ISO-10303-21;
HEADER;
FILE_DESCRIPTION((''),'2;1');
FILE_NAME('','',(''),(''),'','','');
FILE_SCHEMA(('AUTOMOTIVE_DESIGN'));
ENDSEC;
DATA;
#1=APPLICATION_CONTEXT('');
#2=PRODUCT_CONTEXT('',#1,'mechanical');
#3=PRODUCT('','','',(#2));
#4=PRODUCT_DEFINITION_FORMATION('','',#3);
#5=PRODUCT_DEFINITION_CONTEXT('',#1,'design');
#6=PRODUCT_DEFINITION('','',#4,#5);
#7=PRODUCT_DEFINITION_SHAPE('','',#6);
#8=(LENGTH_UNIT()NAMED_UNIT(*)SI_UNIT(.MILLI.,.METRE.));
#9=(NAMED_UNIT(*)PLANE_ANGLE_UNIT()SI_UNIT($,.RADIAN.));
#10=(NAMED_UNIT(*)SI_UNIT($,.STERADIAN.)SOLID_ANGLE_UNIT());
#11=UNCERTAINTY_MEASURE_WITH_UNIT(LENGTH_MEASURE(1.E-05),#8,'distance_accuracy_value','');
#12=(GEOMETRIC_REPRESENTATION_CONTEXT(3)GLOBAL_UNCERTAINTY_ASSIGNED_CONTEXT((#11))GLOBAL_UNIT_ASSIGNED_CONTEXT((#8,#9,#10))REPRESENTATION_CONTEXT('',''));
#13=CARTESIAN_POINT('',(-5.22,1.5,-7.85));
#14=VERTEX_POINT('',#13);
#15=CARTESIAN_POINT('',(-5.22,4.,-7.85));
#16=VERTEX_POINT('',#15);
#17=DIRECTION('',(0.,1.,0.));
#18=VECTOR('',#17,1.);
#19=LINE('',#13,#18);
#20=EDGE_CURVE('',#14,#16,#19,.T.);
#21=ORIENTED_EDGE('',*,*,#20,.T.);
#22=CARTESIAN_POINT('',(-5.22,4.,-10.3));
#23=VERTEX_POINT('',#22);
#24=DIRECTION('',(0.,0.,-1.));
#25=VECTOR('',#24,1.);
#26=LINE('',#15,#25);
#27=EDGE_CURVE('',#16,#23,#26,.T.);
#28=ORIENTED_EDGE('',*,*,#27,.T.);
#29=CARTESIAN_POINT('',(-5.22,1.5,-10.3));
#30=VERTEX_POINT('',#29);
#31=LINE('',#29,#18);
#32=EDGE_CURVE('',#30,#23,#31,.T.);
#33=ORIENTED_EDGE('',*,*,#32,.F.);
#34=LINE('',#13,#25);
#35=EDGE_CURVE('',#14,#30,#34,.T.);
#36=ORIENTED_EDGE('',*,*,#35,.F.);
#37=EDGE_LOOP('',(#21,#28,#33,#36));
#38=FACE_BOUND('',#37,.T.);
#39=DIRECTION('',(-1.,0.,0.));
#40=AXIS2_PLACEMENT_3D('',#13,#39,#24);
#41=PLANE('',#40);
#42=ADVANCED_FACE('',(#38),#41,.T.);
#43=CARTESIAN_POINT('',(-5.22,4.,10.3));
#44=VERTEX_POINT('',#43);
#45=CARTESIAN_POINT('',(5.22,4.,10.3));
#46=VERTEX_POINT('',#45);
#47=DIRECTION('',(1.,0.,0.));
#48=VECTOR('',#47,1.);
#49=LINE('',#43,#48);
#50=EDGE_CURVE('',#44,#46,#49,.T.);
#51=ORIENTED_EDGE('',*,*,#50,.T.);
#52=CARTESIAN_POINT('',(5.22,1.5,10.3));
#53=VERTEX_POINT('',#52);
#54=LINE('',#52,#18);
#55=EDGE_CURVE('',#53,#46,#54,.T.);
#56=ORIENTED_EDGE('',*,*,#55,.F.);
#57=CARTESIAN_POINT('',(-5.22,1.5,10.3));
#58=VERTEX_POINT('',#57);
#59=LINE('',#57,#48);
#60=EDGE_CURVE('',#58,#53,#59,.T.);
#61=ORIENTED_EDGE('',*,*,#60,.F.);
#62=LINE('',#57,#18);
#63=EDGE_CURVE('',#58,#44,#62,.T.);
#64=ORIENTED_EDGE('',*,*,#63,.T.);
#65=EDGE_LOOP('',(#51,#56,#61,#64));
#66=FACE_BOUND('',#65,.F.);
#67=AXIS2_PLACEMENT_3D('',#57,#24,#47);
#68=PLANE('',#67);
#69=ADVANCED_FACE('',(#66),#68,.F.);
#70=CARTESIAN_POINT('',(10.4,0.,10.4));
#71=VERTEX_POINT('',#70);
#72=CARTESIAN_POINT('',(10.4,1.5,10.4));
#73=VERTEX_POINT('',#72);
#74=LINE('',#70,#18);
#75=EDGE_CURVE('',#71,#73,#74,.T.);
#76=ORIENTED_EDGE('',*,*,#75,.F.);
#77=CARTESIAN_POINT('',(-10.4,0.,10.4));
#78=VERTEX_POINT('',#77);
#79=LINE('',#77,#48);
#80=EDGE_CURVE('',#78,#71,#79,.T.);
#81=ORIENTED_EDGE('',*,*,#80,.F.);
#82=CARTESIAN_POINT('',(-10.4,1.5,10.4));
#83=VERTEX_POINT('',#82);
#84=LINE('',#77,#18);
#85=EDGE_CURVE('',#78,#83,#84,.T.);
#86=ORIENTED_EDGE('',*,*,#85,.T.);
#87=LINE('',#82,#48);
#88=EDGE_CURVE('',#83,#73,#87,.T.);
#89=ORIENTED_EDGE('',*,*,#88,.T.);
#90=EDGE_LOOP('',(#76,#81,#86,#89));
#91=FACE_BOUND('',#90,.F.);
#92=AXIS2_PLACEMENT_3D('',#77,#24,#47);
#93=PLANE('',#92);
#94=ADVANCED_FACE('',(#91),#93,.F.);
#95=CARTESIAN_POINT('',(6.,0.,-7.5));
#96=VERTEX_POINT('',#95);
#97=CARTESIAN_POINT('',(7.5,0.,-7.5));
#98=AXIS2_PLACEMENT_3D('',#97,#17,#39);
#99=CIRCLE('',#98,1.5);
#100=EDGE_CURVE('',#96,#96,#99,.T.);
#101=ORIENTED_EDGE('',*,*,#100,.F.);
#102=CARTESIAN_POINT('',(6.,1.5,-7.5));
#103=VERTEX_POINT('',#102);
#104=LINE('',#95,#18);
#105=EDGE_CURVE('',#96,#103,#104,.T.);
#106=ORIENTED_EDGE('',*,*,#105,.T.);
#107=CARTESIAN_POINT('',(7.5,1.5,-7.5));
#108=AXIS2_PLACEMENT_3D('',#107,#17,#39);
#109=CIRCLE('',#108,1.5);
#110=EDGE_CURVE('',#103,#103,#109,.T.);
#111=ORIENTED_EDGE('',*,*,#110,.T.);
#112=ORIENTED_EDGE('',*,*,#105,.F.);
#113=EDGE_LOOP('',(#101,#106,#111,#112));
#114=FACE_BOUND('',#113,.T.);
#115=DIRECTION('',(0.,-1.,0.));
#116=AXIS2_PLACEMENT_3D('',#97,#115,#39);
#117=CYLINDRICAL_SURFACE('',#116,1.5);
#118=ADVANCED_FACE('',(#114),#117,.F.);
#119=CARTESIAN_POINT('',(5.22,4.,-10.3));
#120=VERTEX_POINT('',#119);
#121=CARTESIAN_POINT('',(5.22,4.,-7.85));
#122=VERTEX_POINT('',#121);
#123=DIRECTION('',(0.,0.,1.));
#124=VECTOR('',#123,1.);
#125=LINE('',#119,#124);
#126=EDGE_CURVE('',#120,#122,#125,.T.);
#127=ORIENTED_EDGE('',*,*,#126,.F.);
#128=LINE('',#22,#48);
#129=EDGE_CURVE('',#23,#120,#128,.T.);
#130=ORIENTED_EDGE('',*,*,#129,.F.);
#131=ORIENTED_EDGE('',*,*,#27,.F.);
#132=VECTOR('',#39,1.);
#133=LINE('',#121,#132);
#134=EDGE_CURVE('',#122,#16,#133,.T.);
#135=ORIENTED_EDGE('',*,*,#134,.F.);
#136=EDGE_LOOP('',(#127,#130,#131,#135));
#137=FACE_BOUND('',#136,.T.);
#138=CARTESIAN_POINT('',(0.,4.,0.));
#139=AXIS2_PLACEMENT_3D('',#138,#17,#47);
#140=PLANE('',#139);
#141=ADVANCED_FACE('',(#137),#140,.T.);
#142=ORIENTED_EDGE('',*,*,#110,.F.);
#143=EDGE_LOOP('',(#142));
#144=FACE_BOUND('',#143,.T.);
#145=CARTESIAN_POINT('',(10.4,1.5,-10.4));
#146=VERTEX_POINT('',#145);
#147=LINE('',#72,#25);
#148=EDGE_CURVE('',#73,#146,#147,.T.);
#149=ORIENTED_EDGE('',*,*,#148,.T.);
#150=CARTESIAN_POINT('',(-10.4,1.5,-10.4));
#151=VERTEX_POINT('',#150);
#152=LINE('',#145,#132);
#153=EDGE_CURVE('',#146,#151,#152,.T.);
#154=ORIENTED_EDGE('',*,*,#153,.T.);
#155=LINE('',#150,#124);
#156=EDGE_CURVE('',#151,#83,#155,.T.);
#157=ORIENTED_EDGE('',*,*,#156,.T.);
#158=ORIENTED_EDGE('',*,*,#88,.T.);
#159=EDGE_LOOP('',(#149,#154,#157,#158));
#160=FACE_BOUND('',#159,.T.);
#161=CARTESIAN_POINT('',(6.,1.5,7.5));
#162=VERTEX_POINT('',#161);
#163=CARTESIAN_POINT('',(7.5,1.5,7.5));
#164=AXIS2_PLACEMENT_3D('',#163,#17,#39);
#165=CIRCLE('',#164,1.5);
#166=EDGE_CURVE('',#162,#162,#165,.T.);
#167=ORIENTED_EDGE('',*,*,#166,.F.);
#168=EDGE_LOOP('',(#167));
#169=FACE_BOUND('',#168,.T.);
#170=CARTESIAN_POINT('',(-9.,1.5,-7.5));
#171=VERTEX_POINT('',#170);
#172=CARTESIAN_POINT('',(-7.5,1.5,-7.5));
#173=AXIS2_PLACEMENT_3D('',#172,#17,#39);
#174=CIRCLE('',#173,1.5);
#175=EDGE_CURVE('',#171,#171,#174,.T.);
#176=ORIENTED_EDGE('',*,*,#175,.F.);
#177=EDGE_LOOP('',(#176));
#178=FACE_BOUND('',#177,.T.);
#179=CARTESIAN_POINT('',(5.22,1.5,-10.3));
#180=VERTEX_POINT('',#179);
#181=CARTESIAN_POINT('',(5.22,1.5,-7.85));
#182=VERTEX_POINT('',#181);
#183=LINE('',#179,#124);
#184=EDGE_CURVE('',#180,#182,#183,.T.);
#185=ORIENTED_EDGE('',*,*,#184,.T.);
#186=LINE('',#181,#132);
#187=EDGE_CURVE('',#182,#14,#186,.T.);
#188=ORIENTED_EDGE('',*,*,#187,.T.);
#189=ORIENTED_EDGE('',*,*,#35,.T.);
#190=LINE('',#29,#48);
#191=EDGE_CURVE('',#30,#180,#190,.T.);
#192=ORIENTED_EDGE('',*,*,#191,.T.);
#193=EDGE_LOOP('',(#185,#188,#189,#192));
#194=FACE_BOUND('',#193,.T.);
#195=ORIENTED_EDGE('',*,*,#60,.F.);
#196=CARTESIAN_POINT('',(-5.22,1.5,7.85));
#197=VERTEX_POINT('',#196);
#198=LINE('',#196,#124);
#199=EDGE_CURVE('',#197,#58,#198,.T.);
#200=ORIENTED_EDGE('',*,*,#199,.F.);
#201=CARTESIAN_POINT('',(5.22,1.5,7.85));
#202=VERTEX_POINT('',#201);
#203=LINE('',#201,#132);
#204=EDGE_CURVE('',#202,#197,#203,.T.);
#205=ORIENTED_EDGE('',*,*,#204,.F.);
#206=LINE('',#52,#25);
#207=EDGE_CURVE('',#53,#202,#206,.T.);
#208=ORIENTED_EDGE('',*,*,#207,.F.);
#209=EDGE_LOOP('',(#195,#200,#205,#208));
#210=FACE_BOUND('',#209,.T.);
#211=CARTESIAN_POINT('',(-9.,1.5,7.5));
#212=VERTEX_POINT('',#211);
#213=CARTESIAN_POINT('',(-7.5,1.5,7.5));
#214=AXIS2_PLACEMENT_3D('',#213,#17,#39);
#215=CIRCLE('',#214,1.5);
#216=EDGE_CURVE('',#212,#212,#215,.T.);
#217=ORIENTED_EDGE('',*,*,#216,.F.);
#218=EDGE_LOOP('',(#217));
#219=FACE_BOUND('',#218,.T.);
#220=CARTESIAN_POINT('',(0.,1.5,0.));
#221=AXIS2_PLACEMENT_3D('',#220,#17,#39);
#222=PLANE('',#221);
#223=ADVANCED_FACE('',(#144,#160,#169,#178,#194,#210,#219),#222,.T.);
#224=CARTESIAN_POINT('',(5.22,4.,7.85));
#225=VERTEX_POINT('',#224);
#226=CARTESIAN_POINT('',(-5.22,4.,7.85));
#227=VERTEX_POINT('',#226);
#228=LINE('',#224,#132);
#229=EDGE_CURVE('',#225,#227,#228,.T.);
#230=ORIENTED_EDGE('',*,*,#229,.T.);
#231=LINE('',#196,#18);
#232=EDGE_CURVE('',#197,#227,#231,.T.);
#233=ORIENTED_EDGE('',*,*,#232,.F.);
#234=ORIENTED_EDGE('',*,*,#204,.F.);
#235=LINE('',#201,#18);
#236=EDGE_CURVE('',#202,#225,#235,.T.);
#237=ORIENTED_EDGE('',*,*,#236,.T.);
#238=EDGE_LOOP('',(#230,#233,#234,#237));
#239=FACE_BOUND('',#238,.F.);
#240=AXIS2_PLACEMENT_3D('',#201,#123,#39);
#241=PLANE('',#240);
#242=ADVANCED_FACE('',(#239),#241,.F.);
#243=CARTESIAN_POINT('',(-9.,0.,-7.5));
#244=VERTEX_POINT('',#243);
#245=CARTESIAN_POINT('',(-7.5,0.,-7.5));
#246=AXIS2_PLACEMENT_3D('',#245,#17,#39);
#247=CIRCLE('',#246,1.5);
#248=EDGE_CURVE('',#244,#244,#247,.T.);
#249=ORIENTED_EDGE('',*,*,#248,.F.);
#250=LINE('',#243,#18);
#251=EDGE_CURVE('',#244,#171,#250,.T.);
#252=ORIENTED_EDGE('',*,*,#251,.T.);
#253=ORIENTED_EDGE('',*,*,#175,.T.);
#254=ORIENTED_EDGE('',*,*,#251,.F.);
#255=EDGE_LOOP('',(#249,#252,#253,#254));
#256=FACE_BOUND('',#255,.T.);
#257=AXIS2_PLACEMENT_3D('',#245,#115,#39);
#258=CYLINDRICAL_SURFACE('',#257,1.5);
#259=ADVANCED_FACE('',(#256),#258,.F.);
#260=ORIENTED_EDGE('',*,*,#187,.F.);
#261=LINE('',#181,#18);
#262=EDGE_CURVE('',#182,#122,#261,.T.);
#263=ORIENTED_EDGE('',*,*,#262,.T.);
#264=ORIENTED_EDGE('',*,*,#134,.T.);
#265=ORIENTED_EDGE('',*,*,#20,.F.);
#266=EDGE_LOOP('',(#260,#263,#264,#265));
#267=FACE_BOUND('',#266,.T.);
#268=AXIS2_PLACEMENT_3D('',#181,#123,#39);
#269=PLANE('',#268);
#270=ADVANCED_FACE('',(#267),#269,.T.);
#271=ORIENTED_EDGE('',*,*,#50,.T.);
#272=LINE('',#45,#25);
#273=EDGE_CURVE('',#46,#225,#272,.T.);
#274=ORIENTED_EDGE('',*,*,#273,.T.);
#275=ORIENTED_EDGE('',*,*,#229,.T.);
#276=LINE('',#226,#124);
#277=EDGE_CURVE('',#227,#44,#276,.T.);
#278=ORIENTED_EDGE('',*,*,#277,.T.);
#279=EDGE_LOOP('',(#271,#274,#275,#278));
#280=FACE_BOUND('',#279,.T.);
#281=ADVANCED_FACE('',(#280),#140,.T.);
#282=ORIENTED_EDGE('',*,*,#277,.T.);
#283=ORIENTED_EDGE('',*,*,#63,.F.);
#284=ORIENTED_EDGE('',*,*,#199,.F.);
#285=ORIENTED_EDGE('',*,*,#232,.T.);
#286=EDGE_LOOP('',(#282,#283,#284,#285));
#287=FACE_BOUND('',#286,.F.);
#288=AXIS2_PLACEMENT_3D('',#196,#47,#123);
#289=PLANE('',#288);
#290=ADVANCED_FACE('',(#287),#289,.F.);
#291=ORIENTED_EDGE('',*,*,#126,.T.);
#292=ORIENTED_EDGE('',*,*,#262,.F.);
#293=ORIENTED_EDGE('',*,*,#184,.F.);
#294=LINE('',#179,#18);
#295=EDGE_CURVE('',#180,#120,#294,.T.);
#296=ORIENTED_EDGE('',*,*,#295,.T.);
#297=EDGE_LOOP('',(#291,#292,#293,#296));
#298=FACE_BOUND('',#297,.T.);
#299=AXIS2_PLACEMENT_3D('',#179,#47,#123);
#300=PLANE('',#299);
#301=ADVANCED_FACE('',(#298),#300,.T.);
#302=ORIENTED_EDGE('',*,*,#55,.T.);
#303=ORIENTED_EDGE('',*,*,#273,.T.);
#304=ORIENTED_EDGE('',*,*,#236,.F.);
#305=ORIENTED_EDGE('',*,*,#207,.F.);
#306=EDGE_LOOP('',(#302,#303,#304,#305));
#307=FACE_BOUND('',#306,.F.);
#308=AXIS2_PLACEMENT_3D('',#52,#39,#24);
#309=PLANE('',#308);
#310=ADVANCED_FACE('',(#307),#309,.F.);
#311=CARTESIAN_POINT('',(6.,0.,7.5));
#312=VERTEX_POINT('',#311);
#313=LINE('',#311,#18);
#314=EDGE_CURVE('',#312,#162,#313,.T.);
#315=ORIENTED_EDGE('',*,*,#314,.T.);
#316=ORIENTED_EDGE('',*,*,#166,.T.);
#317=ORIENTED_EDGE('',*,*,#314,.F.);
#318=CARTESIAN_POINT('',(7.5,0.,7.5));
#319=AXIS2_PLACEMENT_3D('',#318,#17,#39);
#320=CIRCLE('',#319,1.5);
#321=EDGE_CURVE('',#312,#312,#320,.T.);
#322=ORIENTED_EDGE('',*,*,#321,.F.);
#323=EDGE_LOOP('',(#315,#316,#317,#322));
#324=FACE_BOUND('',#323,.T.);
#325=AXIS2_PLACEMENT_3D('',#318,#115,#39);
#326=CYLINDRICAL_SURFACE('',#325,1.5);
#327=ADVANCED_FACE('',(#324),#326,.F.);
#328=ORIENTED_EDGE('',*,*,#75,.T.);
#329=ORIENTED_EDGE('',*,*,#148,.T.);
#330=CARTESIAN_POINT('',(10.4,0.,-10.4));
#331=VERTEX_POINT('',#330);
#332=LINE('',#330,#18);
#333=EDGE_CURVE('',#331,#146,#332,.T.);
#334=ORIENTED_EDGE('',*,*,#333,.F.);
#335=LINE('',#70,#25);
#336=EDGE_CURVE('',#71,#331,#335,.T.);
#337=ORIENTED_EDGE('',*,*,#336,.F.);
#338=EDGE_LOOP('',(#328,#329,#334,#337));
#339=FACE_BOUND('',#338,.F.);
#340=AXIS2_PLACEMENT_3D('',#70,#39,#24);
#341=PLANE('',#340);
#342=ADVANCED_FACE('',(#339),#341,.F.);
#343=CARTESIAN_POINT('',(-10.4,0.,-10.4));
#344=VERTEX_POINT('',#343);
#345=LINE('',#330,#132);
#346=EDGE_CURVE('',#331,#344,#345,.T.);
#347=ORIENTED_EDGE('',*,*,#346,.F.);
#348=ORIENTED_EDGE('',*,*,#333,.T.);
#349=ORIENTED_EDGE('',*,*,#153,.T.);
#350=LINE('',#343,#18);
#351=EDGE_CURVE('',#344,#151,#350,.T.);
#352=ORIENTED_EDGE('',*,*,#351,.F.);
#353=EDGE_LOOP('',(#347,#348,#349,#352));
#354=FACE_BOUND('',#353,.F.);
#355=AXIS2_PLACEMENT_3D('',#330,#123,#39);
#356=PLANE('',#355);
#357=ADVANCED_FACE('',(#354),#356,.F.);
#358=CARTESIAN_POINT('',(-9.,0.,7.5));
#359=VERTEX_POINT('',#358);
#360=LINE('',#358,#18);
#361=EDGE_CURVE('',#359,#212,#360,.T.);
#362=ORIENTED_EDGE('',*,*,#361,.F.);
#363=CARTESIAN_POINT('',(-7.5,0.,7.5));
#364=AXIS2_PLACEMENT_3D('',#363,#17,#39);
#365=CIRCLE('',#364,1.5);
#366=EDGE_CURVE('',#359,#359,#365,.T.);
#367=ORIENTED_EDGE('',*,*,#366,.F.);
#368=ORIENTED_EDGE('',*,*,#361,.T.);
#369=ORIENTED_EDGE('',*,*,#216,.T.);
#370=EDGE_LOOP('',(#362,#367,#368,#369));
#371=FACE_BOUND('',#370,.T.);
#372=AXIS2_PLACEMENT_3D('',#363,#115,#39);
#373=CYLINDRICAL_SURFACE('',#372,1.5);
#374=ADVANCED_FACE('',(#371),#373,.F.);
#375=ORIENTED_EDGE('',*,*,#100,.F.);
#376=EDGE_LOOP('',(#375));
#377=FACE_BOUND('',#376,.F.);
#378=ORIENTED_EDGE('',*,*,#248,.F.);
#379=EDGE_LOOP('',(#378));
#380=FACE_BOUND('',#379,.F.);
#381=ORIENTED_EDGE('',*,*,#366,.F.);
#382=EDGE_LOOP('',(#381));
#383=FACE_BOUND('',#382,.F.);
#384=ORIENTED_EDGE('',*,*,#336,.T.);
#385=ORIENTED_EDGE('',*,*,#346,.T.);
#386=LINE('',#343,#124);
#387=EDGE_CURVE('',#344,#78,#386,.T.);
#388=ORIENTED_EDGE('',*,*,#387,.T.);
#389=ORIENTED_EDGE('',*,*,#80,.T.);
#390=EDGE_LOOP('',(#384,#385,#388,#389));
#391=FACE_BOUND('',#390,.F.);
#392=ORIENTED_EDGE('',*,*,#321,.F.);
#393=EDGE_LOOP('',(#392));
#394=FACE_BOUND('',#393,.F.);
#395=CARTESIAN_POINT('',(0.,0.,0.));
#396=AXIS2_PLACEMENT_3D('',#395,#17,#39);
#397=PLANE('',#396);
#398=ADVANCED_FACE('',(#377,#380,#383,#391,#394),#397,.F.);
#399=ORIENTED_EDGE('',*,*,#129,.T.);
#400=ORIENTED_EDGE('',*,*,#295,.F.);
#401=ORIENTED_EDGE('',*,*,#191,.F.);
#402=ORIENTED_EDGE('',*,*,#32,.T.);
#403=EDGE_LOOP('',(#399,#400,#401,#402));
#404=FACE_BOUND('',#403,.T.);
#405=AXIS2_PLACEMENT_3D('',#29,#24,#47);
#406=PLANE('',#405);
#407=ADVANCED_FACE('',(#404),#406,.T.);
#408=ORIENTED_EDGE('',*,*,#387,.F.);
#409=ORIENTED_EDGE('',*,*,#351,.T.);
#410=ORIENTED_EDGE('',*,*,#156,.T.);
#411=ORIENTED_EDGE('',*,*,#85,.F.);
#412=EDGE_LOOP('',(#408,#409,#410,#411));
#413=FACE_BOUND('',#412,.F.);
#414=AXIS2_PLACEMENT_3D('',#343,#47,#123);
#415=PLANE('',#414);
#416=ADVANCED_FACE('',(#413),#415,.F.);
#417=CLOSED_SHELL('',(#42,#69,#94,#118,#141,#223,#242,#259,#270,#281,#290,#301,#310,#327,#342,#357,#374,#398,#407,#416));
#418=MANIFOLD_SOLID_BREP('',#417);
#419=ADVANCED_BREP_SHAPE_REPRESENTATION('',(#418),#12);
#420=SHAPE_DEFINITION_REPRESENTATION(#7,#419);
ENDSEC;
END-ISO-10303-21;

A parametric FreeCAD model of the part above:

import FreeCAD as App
import Part
import Sketcher
from FreeCAD import Vector


def add_polygon(sketch, points):
    """Adds a closed chain of lines whose ends are joined by coincident constraints."""
    first, n = sketch.GeometryCount, len(points)
    for a, b in zip(points, points[1:] + points[:1]):
        sketch.addGeometry(Part.LineSegment(App.Vector(*a, 0), App.Vector(*b, 0)), False)
    for i in range(n):
        sketch.addConstraint(Sketcher.Constraint("Coincident", first + i, 2, first + (i + 1) % n, 1))

doc = App.newDocument("Part")
body = doc.addObject("PartDesign::Body", "Body")

# Sketch on XZ plane
sketch1 = body.newObject("Sketcher::SketchObject", "Sketch")
sketch1.AttachmentSupport = (doc.getObject("XZ_Plane"), [""])
sketch1.MapMode = "FlatFace"
add_polygon(sketch1, [(-10.4, -10.4), (-10.4, 10.4), (10.4, 10.4), (10.4, -10.4)])  # lines 0-3
sketch1.addGeometry(Part.Circle(Vector(7.5, -7.5, 0), Vector(0, 0, 1), 1.5), False)  # 4
sketch1.addGeometry(Part.Circle(Vector(-7.5, -7.5, 0), Vector(0, 0, 1), 1.5), False)  # 5
sketch1.addGeometry(Part.Circle(Vector(7.5, 7.5, 0), Vector(0, 0, 1), 1.5), False)  # 6
sketch1.addGeometry(Part.Circle(Vector(-7.5, 7.5, 0), Vector(0, 0, 1), 1.5), False)  # 7
sketch1.addConstraint([
    Sketcher.Constraint("Vertical", 0),
    Sketcher.Constraint("Horizontal", 1),
    Sketcher.Constraint("Vertical", 2),
    Sketcher.Constraint("Horizontal", 3),
    Sketcher.Constraint("Equal", 4, 5),
    Sketcher.Constraint("Equal", 5, 6),
    Sketcher.Constraint("Equal", 6, 7),
    Sketcher.Constraint("Symmetric", 5, 3, 6, 3, -1, 1),
    Sketcher.Constraint("Symmetric", 4, 3, 7, 3, -1, 1),
    Sketcher.Constraint("Symmetric", 0, 2, 2, 2, -1, 1),
    Sketcher.Constraint("Symmetric", 4, 3, 5, 3, -2),
    Sketcher.Constraint("Equal", 3, 0),
    Sketcher.Constraint("Diameter", 4, 3.0),
    Sketcher.Constraint("DistanceX", 1, 1, 1, 2, 20.8),
    Sketcher.Constraint("DistanceX", 5, 3, 4, 3, 15.0),
    Sketcher.Constraint("DistanceY", 4, 3, 6, 3, 15.0),
])
pad1 = body.newObject("PartDesign::Pad", "Pad")
pad1.Profile = sketch1
pad1.Length = 1.5
pad1.Reversed = True

# Sketch on XZ plane
sketch2 = body.newObject("Sketcher::SketchObject", "Sketch001")
sketch2.AttachmentSupport = (doc.getObject("XZ_Plane"), [""])
sketch2.MapMode = "FlatFace"
sketch2.AttachmentOffset = App.Placement(Vector(0, 0, -1.5), App.Rotation())
add_polygon(sketch2, [(5.2, -10.3), (-5.2, -10.3), (-5.2, -7.8), (5.2, -7.8)])  # lines 0-3
add_polygon(sketch2, [(-5.2, 7.8), (-5.2, 10.3), (5.2, 10.3), (5.2, 7.8)])  # lines 4-7
sketch2.addConstraint([
    Sketcher.Constraint("Horizontal", 0),
    Sketcher.Constraint("Vertical", 1),
    Sketcher.Constraint("Horizontal", 2),
    Sketcher.Constraint("Vertical", 3),
    Sketcher.Constraint("Vertical", 4),
    Sketcher.Constraint("Horizontal", 5),
    Sketcher.Constraint("Vertical", 6),
    Sketcher.Constraint("Horizontal", 7),
    Sketcher.Constraint("Symmetric", 3, 2, 4, 2, -1, 1),
    Sketcher.Constraint("Symmetric", 1, 2, 6, 2, -1, 1),
    Sketcher.Constraint("Vertical", 1, 2, 4, 2),
    Sketcher.Constraint("DistanceX", 0, 2, 0, 1, 10.44),
    Sketcher.Constraint("DistanceY", 1, 1, 1, 2, 2.45),
    Sketcher.Constraint("DistanceY", 0, 2, -1, 1, 10.3),
])
pad2 = body.newObject("PartDesign::Pad", "Pad001")
pad2.Profile = sketch2
pad2.Length = 2.5
pad2.Reversed = True

doc.recompute()
